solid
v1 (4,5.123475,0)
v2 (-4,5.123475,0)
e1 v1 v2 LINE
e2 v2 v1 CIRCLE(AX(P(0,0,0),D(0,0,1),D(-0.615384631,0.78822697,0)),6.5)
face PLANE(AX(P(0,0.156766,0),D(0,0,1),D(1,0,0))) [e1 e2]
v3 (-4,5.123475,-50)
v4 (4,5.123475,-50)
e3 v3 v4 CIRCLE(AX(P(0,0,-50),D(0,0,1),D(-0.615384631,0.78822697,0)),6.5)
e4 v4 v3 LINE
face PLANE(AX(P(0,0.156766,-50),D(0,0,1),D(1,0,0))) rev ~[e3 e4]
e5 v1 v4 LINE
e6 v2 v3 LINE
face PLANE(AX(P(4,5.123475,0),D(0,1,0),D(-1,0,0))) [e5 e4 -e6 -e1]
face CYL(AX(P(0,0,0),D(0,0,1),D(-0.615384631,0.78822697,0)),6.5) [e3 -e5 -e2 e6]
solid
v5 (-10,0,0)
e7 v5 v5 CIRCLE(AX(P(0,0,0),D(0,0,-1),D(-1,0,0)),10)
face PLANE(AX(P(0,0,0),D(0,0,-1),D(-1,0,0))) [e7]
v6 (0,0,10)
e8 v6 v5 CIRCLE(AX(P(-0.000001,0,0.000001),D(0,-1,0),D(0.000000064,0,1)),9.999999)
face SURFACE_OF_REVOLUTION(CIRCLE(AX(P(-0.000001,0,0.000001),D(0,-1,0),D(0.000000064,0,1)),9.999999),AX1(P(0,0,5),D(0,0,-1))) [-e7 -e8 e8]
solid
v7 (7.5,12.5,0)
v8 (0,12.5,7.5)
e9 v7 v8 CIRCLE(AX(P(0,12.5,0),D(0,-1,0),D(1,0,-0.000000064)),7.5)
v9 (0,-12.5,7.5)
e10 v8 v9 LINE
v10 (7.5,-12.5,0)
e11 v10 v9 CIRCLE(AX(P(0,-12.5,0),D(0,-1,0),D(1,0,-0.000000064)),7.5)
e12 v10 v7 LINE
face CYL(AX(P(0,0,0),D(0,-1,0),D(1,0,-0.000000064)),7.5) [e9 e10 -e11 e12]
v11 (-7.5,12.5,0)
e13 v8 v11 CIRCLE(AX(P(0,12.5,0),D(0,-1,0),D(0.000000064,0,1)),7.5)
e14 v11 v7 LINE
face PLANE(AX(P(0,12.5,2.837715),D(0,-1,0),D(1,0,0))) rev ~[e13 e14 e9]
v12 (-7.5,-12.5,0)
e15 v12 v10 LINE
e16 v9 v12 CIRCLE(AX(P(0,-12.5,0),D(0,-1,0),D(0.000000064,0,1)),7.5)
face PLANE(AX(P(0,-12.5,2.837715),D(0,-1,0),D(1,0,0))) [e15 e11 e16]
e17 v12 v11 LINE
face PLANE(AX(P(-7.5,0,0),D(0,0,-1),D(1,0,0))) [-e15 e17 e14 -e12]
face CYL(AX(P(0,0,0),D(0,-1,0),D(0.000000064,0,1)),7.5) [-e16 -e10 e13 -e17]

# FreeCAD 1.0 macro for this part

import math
import FreeCAD as App
import Part
import Sketcher
Q = App.Units.Quantity

doc = App.newDocument("Part")
params = doc.addObject("Spreadsheet::Sheet", "Params")
for row, (alias, value) in enumerate([
    ("sketch1_radius", "9.999999 mm"),
    ("revolution_angle", "360 deg"),
    ("sketch2_radius", "6.5 mm"),
    ("sketch2_width", "8 mm"),
    ("pad1_length", "50 mm"),
    ("sketch3_radius", "7.5 mm"),
    ("pad2_length", "25 mm"),
], start=1):
    params.set(f"A{row}", alias)
    params.set(f"B{row}", "=" + value)
    params.setAlias(f"B{row}", alias)

body = doc.addObject("PartDesign::Body", "Body")

# Sketch on XZ plane
sketch1 = body.newObject("Sketcher::SketchObject", "Sketch")
sketch1.AttachmentSupport = (doc.getObject("XZ_Plane"), [""])
sketch1.MapMode = "FlatFace"
sketch1.addGeometry(Part.LineSegment(App.Vector(0, 0, 0), App.Vector(0, 10, 0)), False)
sketch1.addGeometry(Part.ArcOfCircle(Part.Circle(App.Vector(-0.000001, 0.000001, 0), App.Vector(0, 0, 1), 9.999999), math.radians(89.999996), math.radians(180.000004)), False)
sketch1.addGeometry(Part.LineSegment(App.Vector(-10, 0, 0), App.Vector(0, 0, 0)), False)
sketch1.addConstraint(Sketcher.Constraint("Coincident", 0, 2, 1, 1))
sketch1.addConstraint(Sketcher.Constraint("Coincident", 1, 2, 2, 1))
sketch1.addConstraint(Sketcher.Constraint("Coincident", 2, 2, 0, 1))
sketch1.addConstraint(Sketcher.Constraint("Vertical", 0))
sketch1.addConstraint(Sketcher.Constraint("Horizontal", 2))
sketch1.addConstraint(Sketcher.Constraint("Coincident", 1, 3, -1, 1))
sketch1.addConstraint(Sketcher.Constraint("Coincident", 2, 2, -1, 1))
sketch1.addConstraint(Sketcher.Constraint("Radius", 1, Q("9.999999 mm")))
sketch1.setExpression("Constraints[7]", "Params.sketch1_radius")
revolution = body.newObject("PartDesign::Revolution", "Revolution")
revolution.Profile = sketch1
revolution.ReferenceAxis = (sketch1, ["V_Axis"])
revolution.setExpression("Angle", "Params.revolution_angle")
body2 = doc.addObject("PartDesign::Body", "Body001")

# Sketch on XY plane
sketch2 = body2.newObject("Sketcher::SketchObject", "Sketch001")
sketch2.AttachmentSupport = (doc.getObject("XY_Plane001"), [""])
sketch2.MapMode = "FlatFace"
sketch2.addGeometry(Part.LineSegment(App.Vector(4, 5.123475, 0), App.Vector(-4, 5.123475, 0)), False)
sketch2.addGeometry(Part.ArcOfCircle(Part.Circle(App.Vector(0, 0, 0), App.Vector(0, 0, 1), 6.5), math.radians(127.979874), math.radians(412.020126)), False)
sketch2.addConstraint(Sketcher.Constraint("Coincident", 0, 1, 1, 2))
sketch2.addConstraint(Sketcher.Constraint("Coincident", 1, 1, 0, 2))
sketch2.addConstraint(Sketcher.Constraint("Horizontal", 0))
sketch2.addConstraint(Sketcher.Constraint("Coincident", 1, 3, -1, 1))
sketch2.addConstraint(Sketcher.Constraint("Radius", 1, Q("6.5 mm")))
sketch2.addConstraint(Sketcher.Constraint("DistanceX", 0, 2, 0, 1, Q("8 mm")))
sketch2.setExpression("Constraints[4]", "Params.sketch2_radius")
sketch2.setExpression("Constraints[5]", "Params.sketch2_width")
pad1 = body2.newObject("PartDesign::Pad", "Pad")
pad1.Profile = sketch2
pad1.setExpression("Length", "Params.pad1_length")
pad1.Reversed = True
body3 = doc.addObject("PartDesign::Body", "Body002")

# Sketch on XZ plane
sketch3 = body3.newObject("Sketcher::SketchObject", "Sketch002")
sketch3.AttachmentSupport = (doc.getObject("XZ_Plane002"), [""])
sketch3.MapMode = "FlatFace"
sketch3.addGeometry(Part.ArcOfCircle(Part.Circle(App.Vector(0, 0, 0), App.Vector(0, 0, 1), 7.5), math.radians(-0.000004), math.radians(90.000004)), False)
sketch3.addGeometry(Part.ArcOfCircle(Part.Circle(App.Vector(0, 0, 0), App.Vector(0, 0, 1), 7.5), math.radians(89.999996), math.radians(180.000004)), False)
sketch3.addGeometry(Part.LineSegment(App.Vector(-7.5, 0, 0), App.Vector(7.5, 0, 0)), False)
sketch3.addConstraint(Sketcher.Constraint("Tangent", 0, 2, 1, 1))
sketch3.addConstraint(Sketcher.Constraint("Coincident", 1, 2, 2, 1))
sketch3.addConstraint(Sketcher.Constraint("Coincident", 2, 2, 0, 1))
sketch3.addConstraint(Sketcher.Constraint("Horizontal", 2))
sketch3.addConstraint(Sketcher.Constraint("Coincident", 0, 3, -1, 1))
sketch3.addConstraint(Sketcher.Constraint("Equal", 0, 1))
sketch3.addConstraint(Sketcher.Constraint("PointOnObject", 0, 2, -2))
sketch3.addConstraint(Sketcher.Constraint("PointOnObject", 1, 2, -1))
sketch3.addConstraint(Sketcher.Constraint("Radius", 0, Q("7.5 mm")))
sketch3.setExpression("Constraints[8]", "Params.sketch3_radius")
pad2 = body3.newObject("PartDesign::Pad", "Pad001")
pad2.Profile = sketch3
pad2.setExpression("Length", "Params.pad2_length")
pad2.Midplane = True

doc.recompute()
